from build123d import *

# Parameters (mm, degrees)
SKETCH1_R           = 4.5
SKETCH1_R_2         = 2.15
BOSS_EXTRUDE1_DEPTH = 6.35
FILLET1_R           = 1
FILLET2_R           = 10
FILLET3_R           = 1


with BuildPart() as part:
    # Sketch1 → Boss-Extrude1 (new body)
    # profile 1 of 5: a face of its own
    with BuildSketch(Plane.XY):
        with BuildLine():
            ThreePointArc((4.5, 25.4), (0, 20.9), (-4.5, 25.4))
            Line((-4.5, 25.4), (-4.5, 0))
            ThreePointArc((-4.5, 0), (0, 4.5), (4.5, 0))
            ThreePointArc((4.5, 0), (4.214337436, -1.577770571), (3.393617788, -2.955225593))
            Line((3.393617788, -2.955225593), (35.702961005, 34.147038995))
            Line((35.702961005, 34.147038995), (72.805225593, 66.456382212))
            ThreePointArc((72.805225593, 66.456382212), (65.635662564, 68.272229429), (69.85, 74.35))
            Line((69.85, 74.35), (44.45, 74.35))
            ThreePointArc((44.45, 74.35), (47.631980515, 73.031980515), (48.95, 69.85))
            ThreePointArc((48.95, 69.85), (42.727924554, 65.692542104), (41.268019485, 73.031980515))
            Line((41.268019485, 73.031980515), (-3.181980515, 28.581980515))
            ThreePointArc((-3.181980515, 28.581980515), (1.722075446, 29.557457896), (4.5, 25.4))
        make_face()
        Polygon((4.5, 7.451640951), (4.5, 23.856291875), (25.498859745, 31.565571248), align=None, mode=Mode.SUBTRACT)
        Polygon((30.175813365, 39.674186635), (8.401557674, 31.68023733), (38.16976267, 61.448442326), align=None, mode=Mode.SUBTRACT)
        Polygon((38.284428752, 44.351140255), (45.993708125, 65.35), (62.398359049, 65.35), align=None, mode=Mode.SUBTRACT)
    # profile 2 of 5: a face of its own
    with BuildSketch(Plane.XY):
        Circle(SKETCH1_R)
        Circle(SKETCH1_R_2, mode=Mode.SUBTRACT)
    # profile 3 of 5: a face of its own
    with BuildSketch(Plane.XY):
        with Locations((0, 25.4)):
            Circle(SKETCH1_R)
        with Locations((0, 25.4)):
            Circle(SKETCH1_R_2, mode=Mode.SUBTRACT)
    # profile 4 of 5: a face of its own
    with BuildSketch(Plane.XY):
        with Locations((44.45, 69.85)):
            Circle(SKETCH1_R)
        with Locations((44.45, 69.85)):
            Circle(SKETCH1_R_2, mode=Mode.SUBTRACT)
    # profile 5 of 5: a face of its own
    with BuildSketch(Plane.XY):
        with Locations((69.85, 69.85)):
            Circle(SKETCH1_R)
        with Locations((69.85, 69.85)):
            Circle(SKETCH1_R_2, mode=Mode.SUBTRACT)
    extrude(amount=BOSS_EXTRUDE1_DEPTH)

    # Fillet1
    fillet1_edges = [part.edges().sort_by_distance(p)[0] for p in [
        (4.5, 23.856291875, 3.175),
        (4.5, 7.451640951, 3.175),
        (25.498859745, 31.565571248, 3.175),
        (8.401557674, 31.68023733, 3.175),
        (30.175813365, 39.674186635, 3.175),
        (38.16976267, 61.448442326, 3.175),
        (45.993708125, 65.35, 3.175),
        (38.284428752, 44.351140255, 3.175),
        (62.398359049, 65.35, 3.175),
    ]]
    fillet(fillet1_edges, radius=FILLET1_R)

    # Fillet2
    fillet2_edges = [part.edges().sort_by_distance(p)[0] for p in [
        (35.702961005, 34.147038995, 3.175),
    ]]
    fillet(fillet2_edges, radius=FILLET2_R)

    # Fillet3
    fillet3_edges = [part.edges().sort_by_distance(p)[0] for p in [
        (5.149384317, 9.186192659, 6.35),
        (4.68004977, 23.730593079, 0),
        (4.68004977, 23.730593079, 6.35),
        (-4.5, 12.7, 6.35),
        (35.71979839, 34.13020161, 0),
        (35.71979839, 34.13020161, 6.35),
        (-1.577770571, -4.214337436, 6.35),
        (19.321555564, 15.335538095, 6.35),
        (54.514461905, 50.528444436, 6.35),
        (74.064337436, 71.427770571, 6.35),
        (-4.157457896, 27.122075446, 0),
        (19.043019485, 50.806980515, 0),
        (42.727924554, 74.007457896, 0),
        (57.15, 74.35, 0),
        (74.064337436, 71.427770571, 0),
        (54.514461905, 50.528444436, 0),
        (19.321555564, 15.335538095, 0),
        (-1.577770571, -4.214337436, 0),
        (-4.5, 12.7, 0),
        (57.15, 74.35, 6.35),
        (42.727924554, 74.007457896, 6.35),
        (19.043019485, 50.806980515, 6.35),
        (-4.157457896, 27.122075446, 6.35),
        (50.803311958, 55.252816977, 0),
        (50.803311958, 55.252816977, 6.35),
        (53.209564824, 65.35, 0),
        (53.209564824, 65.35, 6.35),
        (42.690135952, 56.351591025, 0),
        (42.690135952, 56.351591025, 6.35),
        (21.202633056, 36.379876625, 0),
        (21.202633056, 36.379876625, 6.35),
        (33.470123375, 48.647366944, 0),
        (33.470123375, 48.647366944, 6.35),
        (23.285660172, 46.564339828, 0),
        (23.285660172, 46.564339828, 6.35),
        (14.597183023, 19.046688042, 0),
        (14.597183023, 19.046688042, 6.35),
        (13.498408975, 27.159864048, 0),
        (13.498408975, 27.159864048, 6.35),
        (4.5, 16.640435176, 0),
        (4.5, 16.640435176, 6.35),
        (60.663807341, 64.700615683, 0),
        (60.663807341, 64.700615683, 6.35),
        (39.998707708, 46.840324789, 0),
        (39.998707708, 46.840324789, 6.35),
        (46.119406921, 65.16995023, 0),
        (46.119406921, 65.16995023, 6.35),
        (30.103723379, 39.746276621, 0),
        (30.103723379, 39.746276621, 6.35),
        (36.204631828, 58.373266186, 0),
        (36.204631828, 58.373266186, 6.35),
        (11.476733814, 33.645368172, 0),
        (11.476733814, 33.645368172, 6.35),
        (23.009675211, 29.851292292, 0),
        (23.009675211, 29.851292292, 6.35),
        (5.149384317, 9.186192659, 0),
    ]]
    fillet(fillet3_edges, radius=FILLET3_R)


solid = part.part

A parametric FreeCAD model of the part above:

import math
import FreeCAD as App
import Part
import Sketcher
from FreeCAD import Vector
Q = App.Units.Quantity


def edges_at(feature, points):
    """Names of the edges that pass closest to the given points."""
    edges = feature.Shape.Edges
    near = lambda p: min(range(len(edges)), key=lambda i: edges[i].distToShape(Part.Vertex(*p))[0])
    return sorted({f"Edge{near(p) + 1}" for p in points})


def add_polygon(sketch, points):
    """Adds a closed chain of lines whose ends are joined by coincident constraints."""
    first, n = sketch.GeometryCount, len(points)
    for a, b in zip(points, points[1:] + points[:1]):
        sketch.addGeometry(Part.LineSegment(App.Vector(*a, 0), App.Vector(*b, 0)), False)
    for i in range(n):
        sketch.addConstraint(Sketcher.Constraint("Coincident", first + i, 2, first + (i + 1) % n, 1))

doc = App.newDocument("Part")
body = doc.addObject("PartDesign::Body", "Body")

sketch1 = body.newObject("Sketcher::SketchObject", "Sketch")
sketch1.AttachmentSupport = (doc.getObject("XY_Plane"), [""])
sketch1.MapMode = "FlatFace"
sketch1.addGeometry(Part.LineSegment(Vector(-4.5, 25.4, 0), Vector(-4.5, 0, 0)), False)
sketch1.addGeometry(Part.ArcOfCircle(Part.Circle(Vector(0, 0, 0), Vector(0, 0, 1), 4.5), math.radians(180), math.radians(318.950045)), False)
sketch1.addGeometry(Part.LineSegment(Vector(3.393618, -2.955226, 0), Vector(35.702961, 34.147039, 0)), False)
sketch1.addGeometry(Part.LineSegment(Vector(35.702961, 34.147039, 0), Vector(72.805226, 66.456382, 0)), False)
sketch1.addGeometry(Part.ArcOfCircle(Part.Circle(Vector(69.85, 69.85, 0), Vector(0, 0, 1), 4.5), math.radians(-48.950045), math.radians(90)), False)
sketch1.addGeometry(Part.LineSegment(Vector(69.85, 74.35, 0), Vector(44.45, 74.35, 0)), False)
sketch1.addGeometry(Part.ArcOfCircle(Part.Circle(Vector(44.45, 69.85, 0), Vector(0, 0, 1), 4.5), math.radians(90), math.radians(135)), False)
sketch1.addGeometry(Part.LineSegment(Vector(41.268019, 73.031981, 0), Vector(-3.181981, 28.581981, 0)), False)
sketch1.addGeometry(Part.ArcOfCircle(Part.Circle(Vector(0, 25.4, 0), Vector(0, 0, 1), 4.5), math.radians(135), math.radians(180)), False)
add_polygon(sketch1, [(25.49886, 31.565571), (4.5, 7.451641), (4.5, 23.856292)])
add_polygon(sketch1, [(38.169763, 61.448442), (30.175813, 39.674187), (8.401558, 31.680237)])
add_polygon(sketch1, [(62.398359, 65.35), (38.284429, 44.35114), (45.993708, 65.35)])
sketch1.addGeometry(Part.Circle(Vector(0, 25.4, 0), Vector(0, 0, 1), 2.15), False)
sketch1.addGeometry(Part.Circle(Vector(0, 0, 0), Vector(0, 0, 1), 2.15), False)
sketch1.addGeometry(Part.Circle(Vector(44.45, 69.85, 0), Vector(0, 0, 1), 2.15), False)
sketch1.addGeometry(Part.Circle(Vector(69.85, 69.85, 0), Vector(0, 0, 1), 2.15), False)
sketch1.addConstraint([
    Sketcher.Constraint("Tangent", 0, 2, 1, 1),
    Sketcher.Constraint("Tangent", 1, 2, 2, 1),
    Sketcher.Constraint("Coincident", 2, 2, 3, 1),
    Sketcher.Constraint("Tangent", 3, 2, 4, 1),
    Sketcher.Constraint("Tangent", 4, 2, 5, 1),
    Sketcher.Constraint("Tangent", 5, 2, 6, 1),
    Sketcher.Constraint("Tangent", 6, 2, 7, 1),
    Sketcher.Constraint("Tangent", 7, 2, 8, 1),
    Sketcher.Constraint("Tangent", 8, 2, 0, 1),
    Sketcher.Constraint("Vertical", 0),
    Sketcher.Constraint("Horizontal", 5),
    Sketcher.Constraint("Vertical", 10),
    Sketcher.Constraint("Horizontal", 17),
    Sketcher.Constraint("Coincident", 1, 3, -1, 1),
    Sketcher.Constraint("Coincident", 19, 3, -1, 1),
    Sketcher.Constraint("Coincident", 18, 3, 8, 3),
    Sketcher.Constraint("Coincident", 20, 3, 6, 3),
    Sketcher.Constraint("Coincident", 21, 3, 4, 3),
    Sketcher.Constraint("Equal", 1, 4),
    Sketcher.Constraint("Equal", 4, 6),
    Sketcher.Constraint("Equal", 6, 8),
    Sketcher.Constraint("Equal", 18, 19),
    Sketcher.Constraint("Equal", 19, 20),
    Sketcher.Constraint("Equal", 20, 21),
    Sketcher.Constraint("Parallel", 2, 9),
    Sketcher.Constraint("Parallel", 11, 13),
    Sketcher.Constraint("Parallel", 7, 14),
    Sketcher.Constraint("Parallel", 3, 15),
    Sketcher.Constraint("Parallel", 12, 16),
    Sketcher.Constraint("Equal", 5, 0),
    Sketcher.Constraint("Equal", 17, 10),
    Sketcher.Constraint("Equal", 2, 3),
    Sketcher.Constraint("Equal", 12, 13),
    Sketcher.Constraint("Equal", 9, 15),
    Sketcher.Constraint("Diameter", 18, Q("4.3 mm")),
    Sketcher.Constraint("Radius", 1, Q("4.5 mm")),
    Sketcher.Constraint("DistanceX", 5, 2, 5, 1, Q("25.4 mm")),
    Sketcher.Constraint("DistanceX", 0, 2, 9, 2, Q("9 mm")),
    Sketcher.Constraint("DistanceY", 16, 2, 5, 2, Q("9 mm")),
    Sketcher.Constraint("DistanceX", -1, 1, 4, 3, Q("69.85 mm")),
    Sketcher.Constraint("Distance", 14, Q("42.098599 mm")),
    Sketcher.Constraint("DistanceX", 17, 1, 17, 2, Q("16.404651 mm")),
    Sketcher.Constraint("DistanceX", 11, 2, 2, 2, Q("10.204101 mm")),
    Sketcher.Constraint("Distance", 2, Q("49.19829 mm")),
    Sketcher.Constraint("DistanceY", -1, 1, 9, 2, Q("7.451641 mm")),
    Sketcher.Constraint("DistanceX", -1, 1, 15, 2, Q("38.284429 mm")),
    Sketcher.Constraint("DistanceX", 7, 2, 13, 2, Q("11.583538 mm")),
    Sketcher.Constraint("DistanceY", 14, 2, 6, 2, Q("11.583538 mm")),
])
pad1 = body.newObject("PartDesign::Pad", "Pad")
pad1.Profile = sketch1
pad1.Length = 6.35
doc.recompute()

fillet = body.newObject("PartDesign::Fillet", "Fillet")
fillet.Base = (pad1, edges_at(pad1, [
    (4.5, 23.856, 3.175),
    (4.5, 7.452, 3.175),
    (25.499, 31.566, 3.175),
    (8.402, 31.68, 3.175),
    (30.176, 39.674, 3.175),
    (38.17, 61.448, 3.175),
    (45.994, 65.35, 3.175),
    (38.284, 44.351, 3.175),
    (62.398, 65.35, 3.175),
]))
fillet.Radius = 1
doc.recompute()

fillet2 = body.newObject("PartDesign::Fillet", "Fillet001")
fillet2.Base = (fillet, edges_at(fillet, [(35.703, 34.147, 3.175)]))
fillet2.Radius = 10
doc.recompute()

fillet3 = body.newObject("PartDesign::Fillet", "Fillet002")
fillet3.Base = (fillet2, edges_at(fillet2, [
    (5.149, 9.186, 6.35),
    (4.68, 23.731, 0),
    (4.68, 23.731, 6.35),
    (-4.5, 12.7, 6.35),
    (35.72, 34.13, 0),
    (35.72, 34.13, 6.35),
    (-1.578, -4.214, 6.35),
    (19.322, 15.336, 6.35),
    (54.514, 50.528, 6.35),
    (74.064, 71.428, 6.35),
    (-4.157, 27.122, 0),
    (19.043, 50.807, 0),
    (42.728, 74.007, 0),
    (57.15, 74.35, 0),
    (74.064, 71.428, 0),
    (54.514, 50.528, 0),
    (19.322, 15.336, 0),
    (-1.578, -4.214, 0),
    (-4.5, 12.7, 0),
    (57.15, 74.35, 6.35),
    (42.728, 74.007, 6.35),
    (19.043, 50.807, 6.35),
    (-4.157, 27.122, 6.35),
    (50.803, 55.253, 0),
    (50.803, 55.253, 6.35),
    (53.21, 65.35, 0),
    (53.21, 65.35, 6.35),
    (42.69, 56.352, 0),
    (42.69, 56.352, 6.35),
    (21.203, 36.38, 0),
    (21.203, 36.38, 6.35),
    (33.47, 48.647, 0),
    (33.47, 48.647, 6.35),
    (23.286, 46.564, 0),
    (23.286, 46.564, 6.35),
    (14.597, 19.047, 0),
    (14.597, 19.047, 6.35),
    (13.498, 27.16, 0),
    (13.498, 27.16, 6.35),
    (4.5, 16.64, 0),
    (4.5, 16.64, 6.35),
    (60.664, 64.701, 0),
    (60.664, 64.701, 6.35),
    (39.999, 46.84, 0),
    (39.999, 46.84, 6.35),
    (46.119, 65.17, 0),
    (46.119, 65.17, 6.35),
    (30.104, 39.746, 0),
    (30.104, 39.746, 6.35),
    (36.205, 58.373, 0),
    (36.205, 58.373, 6.35),
    (11.477, 33.645, 0),
    (11.477, 33.645, 6.35),
    (23.01, 29.851, 0),
    (23.01, 29.851, 6.35),
    (5.149, 9.186, 0),
]))
fillet3.Radius = 1

doc.recompute()
